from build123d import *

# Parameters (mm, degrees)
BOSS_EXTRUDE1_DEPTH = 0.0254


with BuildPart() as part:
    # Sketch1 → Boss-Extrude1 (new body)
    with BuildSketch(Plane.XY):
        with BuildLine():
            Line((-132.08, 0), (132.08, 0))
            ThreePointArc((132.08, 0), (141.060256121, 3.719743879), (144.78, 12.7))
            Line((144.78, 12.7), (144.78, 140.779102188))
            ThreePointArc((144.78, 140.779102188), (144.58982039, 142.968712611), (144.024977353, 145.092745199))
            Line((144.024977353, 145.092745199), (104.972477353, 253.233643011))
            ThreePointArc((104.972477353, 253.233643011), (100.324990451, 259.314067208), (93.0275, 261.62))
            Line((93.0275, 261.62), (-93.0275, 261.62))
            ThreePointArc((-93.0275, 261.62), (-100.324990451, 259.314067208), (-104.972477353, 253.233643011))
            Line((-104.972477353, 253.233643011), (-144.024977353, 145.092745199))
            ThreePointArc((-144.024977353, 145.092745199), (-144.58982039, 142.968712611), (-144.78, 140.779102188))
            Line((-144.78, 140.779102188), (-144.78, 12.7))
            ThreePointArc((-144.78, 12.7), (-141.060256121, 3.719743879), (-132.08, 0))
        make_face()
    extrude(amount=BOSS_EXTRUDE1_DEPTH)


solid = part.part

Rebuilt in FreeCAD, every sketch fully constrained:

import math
import FreeCAD as App
import Part
import Sketcher
Q = App.Units.Quantity

doc = App.newDocument("Part")
body = doc.addObject("PartDesign::Body", "Body")

sketch1 = body.newObject("Sketcher::SketchObject", "Sketch")
sketch1.AttachmentSupport = (doc.getObject("XY_Plane"), [""])
sketch1.MapMode = "FlatFace"
sketch1.addGeometry([
    Part.LineSegment(App.Vector(-132.08, 0, 0), App.Vector(132.08, 0, 0)),
    Part.ArcOfCircle(Part.Circle(App.Vector(132.08, 12.7, 0), App.Vector(0, 0, 1), 12.7), math.radians(-90), math.radians(0)),
    Part.LineSegment(App.Vector(144.78, 12.7, 0), App.Vector(144.78, 140.779102, 0)),
    Part.ArcOfCircle(Part.Circle(App.Vector(132.08, 140.779102, 0), App.Vector(0, 0, 1), 12.7), math.radians(0), math.radians(19.855974)),
    Part.LineSegment(App.Vector(144.024977, 145.092745, 0), App.Vector(104.972477, 253.233643, 0)),
    Part.ArcOfCircle(Part.Circle(App.Vector(93.0275, 248.92, 0), App.Vector(0, 0, 1), 12.7), math.radians(19.855974), math.radians(90)),
    Part.LineSegment(App.Vector(93.0275, 261.62, 0), App.Vector(-93.0275, 261.62, 0)),
    Part.ArcOfCircle(Part.Circle(App.Vector(-93.0275, 248.92, 0), App.Vector(0, 0, 1), 12.7), math.radians(90), math.radians(160.144026)),
    Part.LineSegment(App.Vector(-104.972477, 253.233643, 0), App.Vector(-144.024977, 145.092745, 0)),
    Part.ArcOfCircle(Part.Circle(App.Vector(-132.08, 140.779102, 0), App.Vector(0, 0, 1), 12.7), math.radians(160.144026), math.radians(180)),
    Part.LineSegment(App.Vector(-144.78, 140.779102, 0), App.Vector(-144.78, 12.7, 0)),
    Part.ArcOfCircle(Part.Circle(App.Vector(-132.08, 12.7, 0), App.Vector(0, 0, 1), 12.7), math.radians(180), math.radians(270)),
], False)
sketch1.addConstraint([
    Sketcher.Constraint("Tangent", 0, 2, 1, 1),
    Sketcher.Constraint("Tangent", 1, 2, 2, 1),
    Sketcher.Constraint("Tangent", 2, 2, 3, 1),
    Sketcher.Constraint("Tangent", 3, 2, 4, 1),
    Sketcher.Constraint("Tangent", 4, 2, 5, 1),
    Sketcher.Constraint("Tangent", 5, 2, 6, 1),
    Sketcher.Constraint("Tangent", 6, 2, 7, 1),
    Sketcher.Constraint("Tangent", 7, 2, 8, 1),
    Sketcher.Constraint("Tangent", 8, 2, 9, 1),
    Sketcher.Constraint("Tangent", 9, 2, 10, 1),
    Sketcher.Constraint("Tangent", 10, 2, 11, 1),
    Sketcher.Constraint("Tangent", 11, 2, 0, 1),
    Sketcher.Constraint("Horizontal", 0),
    Sketcher.Constraint("Vertical", 2),
    Sketcher.Constraint("Horizontal", 6),
    Sketcher.Constraint("Vertical", 10),
    Sketcher.Constraint("Equal", 1, 3),
    Sketcher.Constraint("Equal", 3, 5),
    Sketcher.Constraint("Equal", 5, 7),
    Sketcher.Constraint("Equal", 7, 9),
    Sketcher.Constraint("Equal", 9, 11),
    Sketcher.Constraint("Symmetric", 0, 2, 11, 2, -1, 1),
    Sketcher.Constraint("Symmetric", 4, 2, 7, 2, -2),
    Sketcher.Constraint("Radius", 1, Q("0.5 in")),
    Sketcher.Constraint("DistanceX", 0, 1, 0, 2, Q("10.4 in")),
    Sketcher.Constraint("DistanceY", -1, 1, 5, 3, Q("9.8 in")),
    Sketcher.Constraint("DistanceX", 6, 2, 6, 1, Q("7.325 in")),
    Sketcher.Constraint("Distance", 4, Q("114.976309 mm")),
])
pad1 = body.newObject("PartDesign::Pad", "Pad")
pad1.Profile = sketch1
pad1.Length = Q("0.001 in")

doc.recompute()
